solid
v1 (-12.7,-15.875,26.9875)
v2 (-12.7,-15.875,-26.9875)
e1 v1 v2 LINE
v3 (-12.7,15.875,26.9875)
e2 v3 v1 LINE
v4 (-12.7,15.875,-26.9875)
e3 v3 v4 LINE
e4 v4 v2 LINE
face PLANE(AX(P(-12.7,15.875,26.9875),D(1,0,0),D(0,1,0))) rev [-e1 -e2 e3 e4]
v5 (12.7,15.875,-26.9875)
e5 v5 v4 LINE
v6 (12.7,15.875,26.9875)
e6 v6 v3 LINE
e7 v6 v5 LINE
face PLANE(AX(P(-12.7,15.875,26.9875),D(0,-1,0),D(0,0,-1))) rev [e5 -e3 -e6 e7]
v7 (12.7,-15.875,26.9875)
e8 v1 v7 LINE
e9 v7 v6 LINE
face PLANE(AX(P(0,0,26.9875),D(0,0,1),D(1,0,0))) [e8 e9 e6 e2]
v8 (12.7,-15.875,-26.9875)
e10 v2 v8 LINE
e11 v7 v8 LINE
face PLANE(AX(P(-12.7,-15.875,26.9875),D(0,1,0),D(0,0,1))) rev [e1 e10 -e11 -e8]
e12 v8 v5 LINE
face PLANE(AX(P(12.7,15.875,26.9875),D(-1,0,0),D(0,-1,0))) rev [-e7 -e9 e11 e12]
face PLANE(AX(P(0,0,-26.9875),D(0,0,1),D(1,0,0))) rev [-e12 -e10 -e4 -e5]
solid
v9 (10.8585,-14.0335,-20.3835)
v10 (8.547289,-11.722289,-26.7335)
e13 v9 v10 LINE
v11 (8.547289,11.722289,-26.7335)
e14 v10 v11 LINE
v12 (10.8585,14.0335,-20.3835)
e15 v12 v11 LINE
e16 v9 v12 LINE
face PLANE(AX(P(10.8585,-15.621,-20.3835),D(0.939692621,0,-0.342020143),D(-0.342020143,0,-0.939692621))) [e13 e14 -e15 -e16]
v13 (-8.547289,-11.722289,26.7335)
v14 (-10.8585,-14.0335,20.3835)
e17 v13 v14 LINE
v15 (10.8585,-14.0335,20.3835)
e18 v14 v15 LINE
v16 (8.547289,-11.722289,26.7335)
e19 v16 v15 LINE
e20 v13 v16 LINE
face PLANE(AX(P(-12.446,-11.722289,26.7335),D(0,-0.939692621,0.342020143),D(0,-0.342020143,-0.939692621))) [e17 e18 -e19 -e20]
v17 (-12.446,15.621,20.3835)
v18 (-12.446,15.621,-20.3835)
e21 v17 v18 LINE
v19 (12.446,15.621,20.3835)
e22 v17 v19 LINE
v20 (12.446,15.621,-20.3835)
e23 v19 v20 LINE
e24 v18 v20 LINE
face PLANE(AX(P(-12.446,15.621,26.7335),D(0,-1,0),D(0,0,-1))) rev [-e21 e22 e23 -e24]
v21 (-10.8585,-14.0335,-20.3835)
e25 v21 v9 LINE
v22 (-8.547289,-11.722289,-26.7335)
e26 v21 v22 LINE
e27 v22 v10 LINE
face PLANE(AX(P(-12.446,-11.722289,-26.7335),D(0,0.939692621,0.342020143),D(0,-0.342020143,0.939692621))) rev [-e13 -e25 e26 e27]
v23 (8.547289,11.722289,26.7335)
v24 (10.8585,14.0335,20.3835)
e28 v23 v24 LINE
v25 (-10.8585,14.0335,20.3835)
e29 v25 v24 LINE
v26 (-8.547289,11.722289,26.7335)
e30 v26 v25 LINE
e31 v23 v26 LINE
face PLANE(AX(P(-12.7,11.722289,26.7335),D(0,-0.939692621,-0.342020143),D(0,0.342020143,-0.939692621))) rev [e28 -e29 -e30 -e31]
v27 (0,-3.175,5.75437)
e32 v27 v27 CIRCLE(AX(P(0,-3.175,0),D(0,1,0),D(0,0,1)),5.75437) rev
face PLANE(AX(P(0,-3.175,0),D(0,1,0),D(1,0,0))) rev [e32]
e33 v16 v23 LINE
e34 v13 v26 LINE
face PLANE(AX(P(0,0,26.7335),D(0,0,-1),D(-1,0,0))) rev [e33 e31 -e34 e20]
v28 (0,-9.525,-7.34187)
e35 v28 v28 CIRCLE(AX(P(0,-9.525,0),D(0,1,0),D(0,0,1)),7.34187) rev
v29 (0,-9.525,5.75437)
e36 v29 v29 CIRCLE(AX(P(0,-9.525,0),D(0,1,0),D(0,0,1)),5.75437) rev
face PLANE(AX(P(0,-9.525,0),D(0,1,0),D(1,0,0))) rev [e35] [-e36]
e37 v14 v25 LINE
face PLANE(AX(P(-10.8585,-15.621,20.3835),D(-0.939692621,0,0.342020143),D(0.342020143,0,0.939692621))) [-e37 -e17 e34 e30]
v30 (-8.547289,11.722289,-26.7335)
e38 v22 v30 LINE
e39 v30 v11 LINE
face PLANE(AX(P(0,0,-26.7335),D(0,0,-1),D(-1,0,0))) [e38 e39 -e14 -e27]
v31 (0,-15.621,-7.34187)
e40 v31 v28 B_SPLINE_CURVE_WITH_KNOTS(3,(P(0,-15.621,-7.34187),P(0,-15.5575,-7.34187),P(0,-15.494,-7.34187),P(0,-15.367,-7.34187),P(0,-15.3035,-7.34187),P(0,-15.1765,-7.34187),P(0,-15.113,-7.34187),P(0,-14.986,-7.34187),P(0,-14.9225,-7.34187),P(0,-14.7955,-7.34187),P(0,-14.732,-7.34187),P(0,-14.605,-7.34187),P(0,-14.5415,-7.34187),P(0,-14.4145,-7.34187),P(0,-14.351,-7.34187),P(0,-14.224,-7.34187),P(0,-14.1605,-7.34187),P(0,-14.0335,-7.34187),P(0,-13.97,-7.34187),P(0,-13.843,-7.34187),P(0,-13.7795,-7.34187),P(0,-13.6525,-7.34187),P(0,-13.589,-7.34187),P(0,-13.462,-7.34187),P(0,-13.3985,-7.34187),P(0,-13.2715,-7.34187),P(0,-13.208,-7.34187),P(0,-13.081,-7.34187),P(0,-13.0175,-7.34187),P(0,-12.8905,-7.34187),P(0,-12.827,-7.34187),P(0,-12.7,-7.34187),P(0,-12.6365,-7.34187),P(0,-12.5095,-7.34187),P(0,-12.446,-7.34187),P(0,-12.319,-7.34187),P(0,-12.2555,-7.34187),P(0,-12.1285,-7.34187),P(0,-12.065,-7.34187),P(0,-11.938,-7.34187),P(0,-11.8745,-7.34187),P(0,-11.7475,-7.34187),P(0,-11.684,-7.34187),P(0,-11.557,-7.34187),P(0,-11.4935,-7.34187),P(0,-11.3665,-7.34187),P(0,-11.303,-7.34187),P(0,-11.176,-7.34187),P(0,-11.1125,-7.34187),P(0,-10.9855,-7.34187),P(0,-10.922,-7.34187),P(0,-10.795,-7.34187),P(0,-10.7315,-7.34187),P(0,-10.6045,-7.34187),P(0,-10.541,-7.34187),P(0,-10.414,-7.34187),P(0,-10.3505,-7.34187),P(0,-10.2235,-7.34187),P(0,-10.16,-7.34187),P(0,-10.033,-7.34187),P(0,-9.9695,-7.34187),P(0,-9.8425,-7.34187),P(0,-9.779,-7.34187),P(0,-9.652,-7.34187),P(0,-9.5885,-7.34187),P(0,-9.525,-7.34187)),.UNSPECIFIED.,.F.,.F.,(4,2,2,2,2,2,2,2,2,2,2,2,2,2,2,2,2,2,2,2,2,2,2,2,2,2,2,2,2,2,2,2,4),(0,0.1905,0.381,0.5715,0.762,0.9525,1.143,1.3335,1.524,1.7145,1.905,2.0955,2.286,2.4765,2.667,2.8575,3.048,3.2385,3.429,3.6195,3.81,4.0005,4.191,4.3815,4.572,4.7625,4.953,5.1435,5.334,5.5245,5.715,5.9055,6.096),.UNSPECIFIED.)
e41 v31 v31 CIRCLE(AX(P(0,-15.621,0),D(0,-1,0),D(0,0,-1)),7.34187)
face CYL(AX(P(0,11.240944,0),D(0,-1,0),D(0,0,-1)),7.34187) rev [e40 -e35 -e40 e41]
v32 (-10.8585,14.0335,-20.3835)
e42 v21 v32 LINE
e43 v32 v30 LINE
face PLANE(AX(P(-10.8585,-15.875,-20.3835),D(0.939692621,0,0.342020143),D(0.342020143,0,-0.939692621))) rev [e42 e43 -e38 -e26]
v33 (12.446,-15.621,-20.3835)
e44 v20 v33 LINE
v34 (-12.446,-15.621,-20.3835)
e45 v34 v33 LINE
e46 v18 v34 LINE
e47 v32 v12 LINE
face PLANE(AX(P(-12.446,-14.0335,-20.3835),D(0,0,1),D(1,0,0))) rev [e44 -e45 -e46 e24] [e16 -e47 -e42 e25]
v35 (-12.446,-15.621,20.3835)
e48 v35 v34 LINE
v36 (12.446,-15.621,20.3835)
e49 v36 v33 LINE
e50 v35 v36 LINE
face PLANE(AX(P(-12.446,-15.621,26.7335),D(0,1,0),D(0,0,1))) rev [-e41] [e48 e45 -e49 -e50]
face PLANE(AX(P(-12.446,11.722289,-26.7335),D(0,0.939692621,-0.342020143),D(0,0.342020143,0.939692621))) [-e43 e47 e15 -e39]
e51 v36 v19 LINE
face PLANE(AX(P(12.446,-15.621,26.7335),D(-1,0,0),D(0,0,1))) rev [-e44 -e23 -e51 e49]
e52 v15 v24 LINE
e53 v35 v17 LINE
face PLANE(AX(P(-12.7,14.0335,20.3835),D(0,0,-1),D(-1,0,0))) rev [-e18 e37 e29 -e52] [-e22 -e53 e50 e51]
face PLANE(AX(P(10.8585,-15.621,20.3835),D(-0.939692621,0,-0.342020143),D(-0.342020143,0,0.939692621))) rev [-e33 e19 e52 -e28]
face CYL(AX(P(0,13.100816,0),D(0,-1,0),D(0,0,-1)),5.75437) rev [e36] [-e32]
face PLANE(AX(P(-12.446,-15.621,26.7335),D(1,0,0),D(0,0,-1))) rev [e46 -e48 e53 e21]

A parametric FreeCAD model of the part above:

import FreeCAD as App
import Part
import Sketcher
from FreeCAD import Vector
Q = App.Units.Quantity

doc = App.newDocument("Part")
body = doc.addObject("PartDesign::Body", "Body")

# Sketch on XY plane
sketch1 = body.newObject("Sketcher::SketchObject", "Sketch")
sketch1.AttachmentSupport = (doc.getObject("XY_Plane"), [""])
sketch1.MapMode = "FlatFace"
sketch1.addGeometry(Part.LineSegment(Vector(-13, 16, 0), Vector(-13, -16, 0)), False)
sketch1.addGeometry(Part.LineSegment(Vector(-13, -16, 0), Vector(13, -16, 0)), False)
sketch1.addGeometry(Part.LineSegment(Vector(13, -16, 0), Vector(13, 16, 0)), False)
sketch1.addGeometry(Part.LineSegment(Vector(13, 16, 0), Vector(-13, 16, 0)), False)
sketch1.addConstraint(Sketcher.Constraint("Coincident", 0, 2, 1, 1))
sketch1.addConstraint(Sketcher.Constraint("Coincident", 1, 2, 2, 1))
sketch1.addConstraint(Sketcher.Constraint("Coincident", 2, 2, 3, 1))
sketch1.addConstraint(Sketcher.Constraint("Coincident", 3, 2, 0, 1))
sketch1.addConstraint(Sketcher.Constraint("Vertical", 0))
sketch1.addConstraint(Sketcher.Constraint("Horizontal", 1))
sketch1.addConstraint(Sketcher.Constraint("Vertical", 2))
sketch1.addConstraint(Sketcher.Constraint("Horizontal", 3))
sketch1.addConstraint(Sketcher.Constraint("Symmetric", 0, 2, 2, 2, -1, 1))
sketch1.addConstraint(Sketcher.Constraint("DistanceX", 1, 1, 1, 2, Q("1 in")))
sketch1.addConstraint(Sketcher.Constraint("DistanceY", 0, 2, 0, 1, Q("1.25 in")))
pad1 = body.newObject("PartDesign::Pad", "Pad")
pad1.Profile = sketch1
pad1.Length = Q("2.125 in")
pad1.Midplane = True
body2 = doc.addObject("PartDesign::Body", "Body001")

# Sketch on XY plane
sketch2 = body2.newObject("Sketcher::SketchObject", "Sketch001")
sketch2.AttachmentSupport = (doc.getObject("XY_Plane001"), [""])
sketch2.MapMode = "FlatFace"
sketch2.addGeometry(Part.LineSegment(Vector(-12, 16, 0), Vector(-12, -16, 0)), False)
sketch2.addGeometry(Part.LineSegment(Vector(-12, -16, 0), Vector(12, -16, 0)), False)
sketch2.addGeometry(Part.LineSegment(Vector(12, -16, 0), Vector(12, 16, 0)), False)
sketch2.addGeometry(Part.LineSegment(Vector(12, 16, 0), Vector(-12, 16, 0)), False)
sketch2.addConstraint(Sketcher.Constraint("Coincident", 0, 2, 1, 1))
sketch2.addConstraint(Sketcher.Constraint("Coincident", 1, 2, 2, 1))
sketch2.addConstraint(Sketcher.Constraint("Coincident", 2, 2, 3, 1))
sketch2.addConstraint(Sketcher.Constraint("Coincident", 3, 2, 0, 1))
sketch2.addConstraint(Sketcher.Constraint("Vertical", 0))
sketch2.addConstraint(Sketcher.Constraint("Horizontal", 1))
sketch2.addConstraint(Sketcher.Constraint("Vertical", 2))
sketch2.addConstraint(Sketcher.Constraint("Horizontal", 3))
sketch2.addConstraint(Sketcher.Constraint("Symmetric", 0, 2, 2, 2, -1, 1))
sketch2.addConstraint(Sketcher.Constraint("DistanceX", 1, 1, 1, 2, Q("0.98 in")))
sketch2.addConstraint(Sketcher.Constraint("DistanceY", 0, 2, 0, 1, Q("1.23 in")))
pad2 = body2.newObject("PartDesign::Pad", "Pad001")
pad2.Profile = sketch2
pad2.Length = Q("2.105 in")
pad2.Midplane = True

# Sketch on YZ plane
sketch3 = body2.newObject("Sketcher::SketchObject", "Sketch002")
sketch3.AttachmentSupport = (doc.getObject("YZ_Plane001"), [""])
sketch3.MapMode = "FlatFace"
sketch3.AttachmentOffset = App.Placement(Vector(0, 0, 0.49 * 25.4), App.Rotation())
sketch3.addGeometry(Part.LineSegment(Vector(11.7, 26.7, 0), Vector(14, 20.4, 0)), False)
sketch3.addGeometry(Part.LineSegment(Vector(14, 20.4, 0), Vector(15.6, 20.4, 0)), False)
sketch3.addGeometry(Part.LineSegment(Vector(15.6, 20.4, 0), Vector(15.6, 26.7, 0)), False)
sketch3.addGeometry(Part.LineSegment(Vector(15.6, 26.7, 0), Vector(11.7, 26.7, 0)), False)
sketch3.addConstraint(Sketcher.Constraint("Coincident", 0, 2, 1, 1))
sketch3.addConstraint(Sketcher.Constraint("Coincident", 1, 2, 2, 1))
sketch3.addConstraint(Sketcher.Constraint("Coincident", 2, 2, 3, 1))
sketch3.addConstraint(Sketcher.Constraint("Coincident", 3, 2, 0, 1))
sketch3.addConstraint(Sketcher.Constraint("Horizontal", 1))
sketch3.addConstraint(Sketcher.Constraint("Vertical", 2))
sketch3.addConstraint(Sketcher.Constraint("Horizontal", 3))
sketch3.addConstraint(Sketcher.Constraint("Angle", 0, Q("-70 deg")))
sketch3.addConstraint(Sketcher.Constraint("DistanceY", 2, 1, 2, 2, Q("0.25 in")))
sketch3.addConstraint(Sketcher.Constraint("DistanceX", 1, 1, 1, 2, Q("0.0625 in")))
sketch3.addConstraint(Sketcher.Constraint("DistanceX", -1, 1, 1, 2, Q("0.615 in")))
sketch3.addConstraint(Sketcher.Constraint("DistanceY", -1, 1, 0, 2, Q("0.8025 in")))
pocket1 = body2.newObject("PartDesign::Pocket", "Pocket")
pocket1.Profile = sketch3
pocket1.Type = "ThroughAll"
doc.recompute()

mirrored = body2.newObject("PartDesign::Mirrored", "Mirrored")
mirrored.Originals = [pocket1]
mirrored.MirrorPlane = (doc.getObject("XZ_Plane001"), [""])
body2.Tip = mirrored
doc.recompute()

mirrored2 = body2.newObject("PartDesign::Mirrored", "Mirrored001")
mirrored2.Originals = [pocket1]
mirrored2.MirrorPlane = (doc.getObject("XY_Plane001"), [""])
body2.Tip = mirrored2

# Sketch on YZ plane
sketch4 = body2.newObject("Sketcher::SketchObject", "Sketch003")
sketch4.AttachmentSupport = (doc.getObject("YZ_Plane001"), [""])
sketch4.MapMode = "FlatFace"
sketch4.AttachmentOffset = App.Placement(Vector(0, 0, 0.49 * 25.4), App.Rotation())
sketch4.addGeometry(Part.LineSegment(Vector(-11.7, -26.7, 0), Vector(-14, -20.4, 0)), False)
sketch4.addGeometry(Part.LineSegment(Vector(-14, -20.4, 0), Vector(-15.6, -20.4, 0)), False)
sketch4.addGeometry(Part.LineSegment(Vector(-15.6, -20.4, 0), Vector(-15.6, -26.7, 0)), False)
sketch4.addGeometry(Part.LineSegment(Vector(-15.6, -26.7, 0), Vector(-11.7, -26.7, 0)), False)
sketch4.addConstraint(Sketcher.Constraint("Coincident", 0, 2, 1, 1))
sketch4.addConstraint(Sketcher.Constraint("Coincident", 1, 2, 2, 1))
sketch4.addConstraint(Sketcher.Constraint("Coincident", 2, 2, 3, 1))
sketch4.addConstraint(Sketcher.Constraint("Coincident", 3, 2, 0, 1))
sketch4.addConstraint(Sketcher.Constraint("Horizontal", 1))
sketch4.addConstraint(Sketcher.Constraint("Vertical", 2))
sketch4.addConstraint(Sketcher.Constraint("Horizontal", 3))
sketch4.addConstraint(Sketcher.Constraint("Angle", 0, Q("110 deg")))
sketch4.addConstraint(Sketcher.Constraint("DistanceY", 2, 2, 2, 1, Q("0.25 in")))
sketch4.addConstraint(Sketcher.Constraint("DistanceX", 1, 2, 1, 1, Q("0.0625 in")))
sketch4.addConstraint(Sketcher.Constraint("DistanceX", 1, 2, -1, 1, Q("0.615 in")))
sketch4.addConstraint(Sketcher.Constraint("DistanceY", 0, 2, -1, 1, Q("0.8025 in")))
pocket2 = body2.newObject("PartDesign::Pocket", "Pocket001")
pocket2.Profile = sketch4
pocket2.Type = "ThroughAll"

# Sketch on XZ plane
sketch5 = body2.newObject("Sketcher::SketchObject", "Sketch004")
sketch5.AttachmentSupport = (doc.getObject("XZ_Plane001"), [""])
sketch5.MapMode = "FlatFace"
sketch5.AttachmentOffset = App.Placement(Vector(0, 0, -0.615 * 25.4), App.Rotation())
sketch5.addGeometry(Part.LineSegment(Vector(-12.4, -26.7, 0), Vector(-12.4, -20.4, 0)), False)
sketch5.addGeometry(Part.LineSegment(Vector(-12.4, -20.4, 0), Vector(-10.9, -20.4, 0)), False)
sketch5.addGeometry(Part.LineSegment(Vector(-10.9, -20.4, 0), Vector(-8.5, -26.7, 0)), False)
sketch5.addGeometry(Part.LineSegment(Vector(-8.5, -26.7, 0), Vector(-12.4, -26.7, 0)), False)
sketch5.addConstraint(Sketcher.Constraint("Coincident", 0, 2, 1, 1))
sketch5.addConstraint(Sketcher.Constraint("Coincident", 1, 2, 2, 1))
sketch5.addConstraint(Sketcher.Constraint("Coincident", 2, 2, 3, 1))
sketch5.addConstraint(Sketcher.Constraint("Coincident", 3, 2, 0, 1))
sketch5.addConstraint(Sketcher.Constraint("Vertical", 0))
sketch5.addConstraint(Sketcher.Constraint("Horizontal", 1))
sketch5.addConstraint(Sketcher.Constraint("Horizontal", 3))
sketch5.addConstraint(Sketcher.Constraint("Angle", 2, Q("-70 deg")))
sketch5.addConstraint(Sketcher.Constraint("DistanceY", 0, 1, 0, 2, Q("0.25 in")))
sketch5.addConstraint(Sketcher.Constraint("DistanceX", 1, 1, 1, 2, Q("0.0625 in")))
sketch5.addConstraint(Sketcher.Constraint("DistanceX", 0, 2, -1, 1, Q("0.49 in")))
sketch5.addConstraint(Sketcher.Constraint("DistanceY", 0, 2, -1, 1, Q("0.8025 in")))
pocket3 = body2.newObject("PartDesign::Pocket", "Pocket002")
pocket3.Profile = sketch5
pocket3.Length = 88.755131
pocket3.Midplane = True
doc.recompute()

mirrored3 = body2.newObject("PartDesign::Mirrored", "Mirrored002")
mirrored3.Originals = [pocket3]
mirrored3.MirrorPlane = (doc.getObject("YZ_Plane001"), [""])
body2.Tip = mirrored3
doc.recompute()

mirrored4 = body2.newObject("PartDesign::Mirrored", "Mirrored003")
mirrored4.Originals = [pocket3]
mirrored4.MirrorPlane = (doc.getObject("XY_Plane001"), [""])
body2.Tip = mirrored4

# Sketch on XZ plane
sketch6 = body2.newObject("Sketcher::SketchObject", "Sketch005")
sketch6.AttachmentSupport = (doc.getObject("XZ_Plane001"), [""])
sketch6.MapMode = "FlatFace"
sketch6.AttachmentOffset = App.Placement(Vector(0, 0, -0.615 * 25.4), App.Rotation())
sketch6.addGeometry(Part.LineSegment(Vector(12.4, 26.7, 0), Vector(12.4, 20.4, 0)), False)
sketch6.addGeometry(Part.LineSegment(Vector(12.4, 20.4, 0), Vector(10.9, 20.4, 0)), False)
sketch6.addGeometry(Part.LineSegment(Vector(10.9, 20.4, 0), Vector(8.5, 26.7, 0)), False)
sketch6.addGeometry(Part.LineSegment(Vector(8.5, 26.7, 0), Vector(12.4, 26.7, 0)), False)
sketch6.addConstraint(Sketcher.Constraint("Coincident", 0, 2, 1, 1))
sketch6.addConstraint(Sketcher.Constraint("Coincident", 1, 2, 2, 1))
sketch6.addConstraint(Sketcher.Constraint("Coincident", 2, 2, 3, 1))
sketch6.addConstraint(Sketcher.Constraint("Coincident", 3, 2, 0, 1))
sketch6.addConstraint(Sketcher.Constraint("Vertical", 0))
sketch6.addConstraint(Sketcher.Constraint("Horizontal", 1))
sketch6.addConstraint(Sketcher.Constraint("Horizontal", 3))
sketch6.addConstraint(Sketcher.Constraint("Angle", 2, Q("110 deg")))
sketch6.addConstraint(Sketcher.Constraint("DistanceY", 0, 2, 0, 1, Q("0.25 in")))
sketch6.addConstraint(Sketcher.Constraint("DistanceX", 1, 2, 1, 1, Q("0.0625 in")))
sketch6.addConstraint(Sketcher.Constraint("DistanceX", -1, 1, 0, 2, Q("0.49 in")))
sketch6.addConstraint(Sketcher.Constraint("DistanceY", -1, 1, 0, 2, Q("0.8025 in")))
pocket4 = body2.newObject("PartDesign::Pocket", "Pocket003")
pocket4.Profile = sketch6
pocket4.Length = 88.755131
pocket4.Midplane = True

# Sketch on XZ plane
sketch7 = body2.newObject("Sketcher::SketchObject", "Sketch006")
sketch7.AttachmentSupport = (doc.getObject("XZ_Plane001"), [""])
sketch7.MapMode = "FlatFace"
sketch7.AttachmentOffset = App.Placement(Vector(0, 0, 0.615 * 25.4), App.Rotation())
sketch7.addGeometry(Part.Circle(Vector(0, 0, 0), Vector(0, 0, 1), 6), False)
sketch7.addConstraint(Sketcher.Constraint("Coincident", 0, 3, -1, 1))
sketch7.addConstraint(Sketcher.Constraint("Diameter", 0, Q("0.4531 in")))
pocket5 = body2.newObject("PartDesign::Pocket", "Pocket004")
pocket5.Profile = sketch7
pocket5.Length = Q("0.49 in")

# Sketch on XZ plane
sketch8 = body2.newObject("Sketcher::SketchObject", "Sketch007")
sketch8.AttachmentSupport = (doc.getObject("XZ_Plane001"), [""])
sketch8.MapMode = "FlatFace"
sketch8.AttachmentOffset = App.Placement(Vector(0, 0, 0.615 * 25.4), App.Rotation())
sketch8.addGeometry(Part.Circle(Vector(0, 0, 0), Vector(0, 0, 1), 7), False)
sketch8.addConstraint(Sketcher.Constraint("Coincident", 0, 3, -1, 1))
sketch8.addConstraint(Sketcher.Constraint("Diameter", 0, Q("0.5781 in")))
pocket6 = body2.newObject("PartDesign::Pocket", "Pocket005")
pocket6.Profile = sketch8
pocket6.Length = Q("0.24 in")

doc.recompute()
